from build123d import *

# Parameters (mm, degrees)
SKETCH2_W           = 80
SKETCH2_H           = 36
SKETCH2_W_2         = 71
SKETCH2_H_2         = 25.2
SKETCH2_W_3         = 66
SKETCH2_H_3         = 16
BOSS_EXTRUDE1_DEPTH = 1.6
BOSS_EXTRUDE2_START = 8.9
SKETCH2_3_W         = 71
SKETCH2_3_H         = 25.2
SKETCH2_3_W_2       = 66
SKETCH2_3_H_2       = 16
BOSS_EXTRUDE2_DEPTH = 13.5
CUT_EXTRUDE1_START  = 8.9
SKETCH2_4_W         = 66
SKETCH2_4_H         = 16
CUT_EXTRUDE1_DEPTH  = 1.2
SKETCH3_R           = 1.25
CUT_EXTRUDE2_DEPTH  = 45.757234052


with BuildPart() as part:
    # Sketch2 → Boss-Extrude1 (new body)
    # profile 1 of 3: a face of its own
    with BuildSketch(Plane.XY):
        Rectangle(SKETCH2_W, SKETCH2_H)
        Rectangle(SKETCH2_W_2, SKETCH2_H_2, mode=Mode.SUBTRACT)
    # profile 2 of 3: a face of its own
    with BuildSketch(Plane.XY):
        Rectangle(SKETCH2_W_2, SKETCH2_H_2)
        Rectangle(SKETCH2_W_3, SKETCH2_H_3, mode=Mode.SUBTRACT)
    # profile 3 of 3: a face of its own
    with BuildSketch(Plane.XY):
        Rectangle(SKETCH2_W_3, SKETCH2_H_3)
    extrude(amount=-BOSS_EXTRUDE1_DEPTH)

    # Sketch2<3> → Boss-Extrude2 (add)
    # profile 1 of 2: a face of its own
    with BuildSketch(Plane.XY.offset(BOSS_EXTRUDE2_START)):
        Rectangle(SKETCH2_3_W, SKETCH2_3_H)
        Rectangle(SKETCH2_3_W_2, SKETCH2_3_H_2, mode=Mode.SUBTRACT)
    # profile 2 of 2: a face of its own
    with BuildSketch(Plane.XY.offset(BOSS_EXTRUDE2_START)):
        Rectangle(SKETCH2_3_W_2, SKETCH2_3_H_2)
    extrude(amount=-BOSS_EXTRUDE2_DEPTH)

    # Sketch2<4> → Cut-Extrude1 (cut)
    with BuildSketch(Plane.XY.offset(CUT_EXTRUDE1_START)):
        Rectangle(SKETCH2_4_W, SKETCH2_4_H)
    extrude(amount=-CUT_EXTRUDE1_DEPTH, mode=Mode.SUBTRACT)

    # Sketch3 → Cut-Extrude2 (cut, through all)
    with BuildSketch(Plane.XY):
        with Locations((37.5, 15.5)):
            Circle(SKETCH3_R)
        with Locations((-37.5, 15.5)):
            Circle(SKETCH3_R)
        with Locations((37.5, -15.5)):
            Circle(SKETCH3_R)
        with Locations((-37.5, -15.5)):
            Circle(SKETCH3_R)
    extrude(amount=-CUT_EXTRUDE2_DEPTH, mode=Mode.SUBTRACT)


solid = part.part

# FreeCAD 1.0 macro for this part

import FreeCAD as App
import Part
import Sketcher

V = App.Vector
Q = App.Units.Quantity


def add_polygon(sketch, points):
    """Adds a closed chain of lines whose ends are joined by coincident constraints."""
    first, n = sketch.GeometryCount, len(points)
    for a, b in zip(points, points[1:] + points[:1]):
        sketch.addGeometry(Part.LineSegment(App.Vector(*a, 0), App.Vector(*b, 0)), False)
    for i in range(n):
        sketch.addConstraint(Sketcher.Constraint("Coincident", first + i, 2, first + (i + 1) % n, 1))

doc = App.newDocument("Part")
params = doc.addObject("Spreadsheet::Sheet", "Params")
for row, (alias, value) in enumerate([
    ("sketch1_width", "80 mm"),
    ("sketch1_height", "36 mm"),
    ("pad1_length", "1.6 mm"),
    ("sketch2_width", "71 mm"),
    ("sketch2_height", "25.2 mm"),
    ("pad2_length", "13.5 mm"),
    ("sketch3_width", "66 mm"),
    ("sketch3_height", "16 mm"),
    ("pocket1_length", "1.2 mm"),
    ("sketch4_diameter", "2.5 mm"),
], start=1):
    params.set(f"A{row}", alias)
    params.set(f"B{row}", "=" + value)
    params.setAlias(f"B{row}", alias)

body = doc.addObject("PartDesign::Body", "Body")

# Sketch on XY plane
sketch1 = body.newObject("Sketcher::SketchObject", "Sketch")
sketch1.AttachmentSupport = (doc.getObject("XY_Plane"), [""])
sketch1.MapMode = "FlatFace"
add_polygon(sketch1, [(-40, 18), (-40, -18), (40, -18), (40, 18)])  # lines 0-3
sketch1.addConstraint(Sketcher.Constraint("Vertical", 0))
sketch1.addConstraint(Sketcher.Constraint("Horizontal", 1))
sketch1.addConstraint(Sketcher.Constraint("Vertical", 2))
sketch1.addConstraint(Sketcher.Constraint("Horizontal", 3))
sketch1.addConstraint(Sketcher.Constraint("Symmetric", 0, 2, 2, 2, -1, 1))
sketch1.addConstraint(Sketcher.Constraint("DistanceX", 1, 1, 1, 2, Q("80 mm")))
sketch1.addConstraint(Sketcher.Constraint("DistanceY", 0, 2, 0, 1, Q("36 mm")))
sketch1.setExpression("Constraints[9]", "Params.sketch1_width")
sketch1.setExpression("Constraints[10]", "Params.sketch1_height")
pad1 = body.newObject("PartDesign::Pad", "Pad")
pad1.Profile = sketch1
pad1.setExpression("Length", "Params.pad1_length")
pad1.Reversed = True

# Sketch on XY plane
sketch2 = body.newObject("Sketcher::SketchObject", "Sketch001")
sketch2.AttachmentSupport = (doc.getObject("XY_Plane"), [""])
sketch2.MapMode = "FlatFace"
sketch2.AttachmentOffset = App.Placement(V(0, 0, 8.9), App.Rotation())
add_polygon(sketch2, [(-36, 13), (-36, -13), (36, -13), (36, 13)])  # lines 0-3
sketch2.addConstraint(Sketcher.Constraint("Vertical", 0))
sketch2.addConstraint(Sketcher.Constraint("Horizontal", 1))
sketch2.addConstraint(Sketcher.Constraint("Vertical", 2))
sketch2.addConstraint(Sketcher.Constraint("Horizontal", 3))
sketch2.addConstraint(Sketcher.Constraint("Symmetric", 0, 2, 2, 2, -1, 1))
sketch2.addConstraint(Sketcher.Constraint("DistanceX", 1, 1, 1, 2, Q("71 mm")))
sketch2.addConstraint(Sketcher.Constraint("DistanceY", 0, 2, 0, 1, Q("25.2 mm")))
sketch2.setExpression("Constraints[9]", "Params.sketch2_width")
sketch2.setExpression("Constraints[10]", "Params.sketch2_height")
pad2 = body.newObject("PartDesign::Pad", "Pad001")
pad2.Profile = sketch2
pad2.setExpression("Length", "Params.pad2_length")
pad2.Reversed = True

# Sketch on XY plane
sketch3 = body.newObject("Sketcher::SketchObject", "Sketch002")
sketch3.AttachmentSupport = (doc.getObject("XY_Plane"), [""])
sketch3.MapMode = "FlatFace"
sketch3.AttachmentOffset = App.Placement(V(0, 0, 8.9), App.Rotation())
add_polygon(sketch3, [(-33, 8), (-33, -8), (33, -8), (33, 8)])  # lines 0-3
sketch3.addConstraint(Sketcher.Constraint("Vertical", 0))
sketch3.addConstraint(Sketcher.Constraint("Horizontal", 1))
sketch3.addConstraint(Sketcher.Constraint("Vertical", 2))
sketch3.addConstraint(Sketcher.Constraint("Horizontal", 3))
sketch3.addConstraint(Sketcher.Constraint("Symmetric", 0, 2, 2, 2, -1, 1))
sketch3.addConstraint(Sketcher.Constraint("DistanceX", 1, 1, 1, 2, Q("66 mm")))
sketch3.addConstraint(Sketcher.Constraint("DistanceY", 0, 2, 0, 1, Q("16 mm")))
sketch3.setExpression("Constraints[9]", "Params.sketch3_width")
sketch3.setExpression("Constraints[10]", "Params.sketch3_height")
pocket1 = body.newObject("PartDesign::Pocket", "Pocket")
pocket1.Profile = sketch3
pocket1.setExpression("Length", "Params.pocket1_length")

# Sketch on XY plane
sketch4 = body.newObject("Sketcher::SketchObject", "Sketch003")
sketch4.AttachmentSupport = (doc.getObject("XY_Plane"), [""])
sketch4.MapMode = "FlatFace"
sketch4.addGeometry(Part.Circle(V(37.5, 15.5, 0), V(0, 0, 1), 1.2), False)
sketch4.addGeometry(Part.Circle(V(-37.5, 15.5, 0), V(0, 0, 1), 1.2), False)
sketch4.addGeometry(Part.Circle(V(37.5, -15.5, 0), V(0, 0, 1), 1.2), False)
sketch4.addGeometry(Part.Circle(V(-37.5, -15.5, 0), V(0, 0, 1), 1.2), False)
sketch4.addConstraint(Sketcher.Constraint("Equal", 0, 1))
sketch4.addConstraint(Sketcher.Constraint("Equal", 1, 2))
sketch4.addConstraint(Sketcher.Constraint("Equal", 2, 3))
sketch4.addConstraint(Sketcher.Constraint("Symmetric", 1, 3, 2, 3, -1, 1))
sketch4.addConstraint(Sketcher.Constraint("Symmetric", 0, 3, 3, 3, -1, 1))
sketch4.addConstraint(Sketcher.Constraint("Symmetric", 0, 3, 1, 3, -2))
sketch4.addConstraint(Sketcher.Constraint("Diameter", 0, Q("2.5 mm")))
sketch4.addConstraint(Sketcher.Constraint("DistanceX", 1, 3, 0, 3, Q("75 mm")))
sketch4.addConstraint(Sketcher.Constraint("DistanceY", 2, 3, 0, 3, Q("31 mm")))
sketch4.setExpression("Constraints[6]", "Params.sketch4_diameter")
pocket2 = body.newObject("PartDesign::Pocket", "Pocket001")
pocket2.Profile = sketch4
pocket2.Type = "ThroughAll"

doc.recompute()
